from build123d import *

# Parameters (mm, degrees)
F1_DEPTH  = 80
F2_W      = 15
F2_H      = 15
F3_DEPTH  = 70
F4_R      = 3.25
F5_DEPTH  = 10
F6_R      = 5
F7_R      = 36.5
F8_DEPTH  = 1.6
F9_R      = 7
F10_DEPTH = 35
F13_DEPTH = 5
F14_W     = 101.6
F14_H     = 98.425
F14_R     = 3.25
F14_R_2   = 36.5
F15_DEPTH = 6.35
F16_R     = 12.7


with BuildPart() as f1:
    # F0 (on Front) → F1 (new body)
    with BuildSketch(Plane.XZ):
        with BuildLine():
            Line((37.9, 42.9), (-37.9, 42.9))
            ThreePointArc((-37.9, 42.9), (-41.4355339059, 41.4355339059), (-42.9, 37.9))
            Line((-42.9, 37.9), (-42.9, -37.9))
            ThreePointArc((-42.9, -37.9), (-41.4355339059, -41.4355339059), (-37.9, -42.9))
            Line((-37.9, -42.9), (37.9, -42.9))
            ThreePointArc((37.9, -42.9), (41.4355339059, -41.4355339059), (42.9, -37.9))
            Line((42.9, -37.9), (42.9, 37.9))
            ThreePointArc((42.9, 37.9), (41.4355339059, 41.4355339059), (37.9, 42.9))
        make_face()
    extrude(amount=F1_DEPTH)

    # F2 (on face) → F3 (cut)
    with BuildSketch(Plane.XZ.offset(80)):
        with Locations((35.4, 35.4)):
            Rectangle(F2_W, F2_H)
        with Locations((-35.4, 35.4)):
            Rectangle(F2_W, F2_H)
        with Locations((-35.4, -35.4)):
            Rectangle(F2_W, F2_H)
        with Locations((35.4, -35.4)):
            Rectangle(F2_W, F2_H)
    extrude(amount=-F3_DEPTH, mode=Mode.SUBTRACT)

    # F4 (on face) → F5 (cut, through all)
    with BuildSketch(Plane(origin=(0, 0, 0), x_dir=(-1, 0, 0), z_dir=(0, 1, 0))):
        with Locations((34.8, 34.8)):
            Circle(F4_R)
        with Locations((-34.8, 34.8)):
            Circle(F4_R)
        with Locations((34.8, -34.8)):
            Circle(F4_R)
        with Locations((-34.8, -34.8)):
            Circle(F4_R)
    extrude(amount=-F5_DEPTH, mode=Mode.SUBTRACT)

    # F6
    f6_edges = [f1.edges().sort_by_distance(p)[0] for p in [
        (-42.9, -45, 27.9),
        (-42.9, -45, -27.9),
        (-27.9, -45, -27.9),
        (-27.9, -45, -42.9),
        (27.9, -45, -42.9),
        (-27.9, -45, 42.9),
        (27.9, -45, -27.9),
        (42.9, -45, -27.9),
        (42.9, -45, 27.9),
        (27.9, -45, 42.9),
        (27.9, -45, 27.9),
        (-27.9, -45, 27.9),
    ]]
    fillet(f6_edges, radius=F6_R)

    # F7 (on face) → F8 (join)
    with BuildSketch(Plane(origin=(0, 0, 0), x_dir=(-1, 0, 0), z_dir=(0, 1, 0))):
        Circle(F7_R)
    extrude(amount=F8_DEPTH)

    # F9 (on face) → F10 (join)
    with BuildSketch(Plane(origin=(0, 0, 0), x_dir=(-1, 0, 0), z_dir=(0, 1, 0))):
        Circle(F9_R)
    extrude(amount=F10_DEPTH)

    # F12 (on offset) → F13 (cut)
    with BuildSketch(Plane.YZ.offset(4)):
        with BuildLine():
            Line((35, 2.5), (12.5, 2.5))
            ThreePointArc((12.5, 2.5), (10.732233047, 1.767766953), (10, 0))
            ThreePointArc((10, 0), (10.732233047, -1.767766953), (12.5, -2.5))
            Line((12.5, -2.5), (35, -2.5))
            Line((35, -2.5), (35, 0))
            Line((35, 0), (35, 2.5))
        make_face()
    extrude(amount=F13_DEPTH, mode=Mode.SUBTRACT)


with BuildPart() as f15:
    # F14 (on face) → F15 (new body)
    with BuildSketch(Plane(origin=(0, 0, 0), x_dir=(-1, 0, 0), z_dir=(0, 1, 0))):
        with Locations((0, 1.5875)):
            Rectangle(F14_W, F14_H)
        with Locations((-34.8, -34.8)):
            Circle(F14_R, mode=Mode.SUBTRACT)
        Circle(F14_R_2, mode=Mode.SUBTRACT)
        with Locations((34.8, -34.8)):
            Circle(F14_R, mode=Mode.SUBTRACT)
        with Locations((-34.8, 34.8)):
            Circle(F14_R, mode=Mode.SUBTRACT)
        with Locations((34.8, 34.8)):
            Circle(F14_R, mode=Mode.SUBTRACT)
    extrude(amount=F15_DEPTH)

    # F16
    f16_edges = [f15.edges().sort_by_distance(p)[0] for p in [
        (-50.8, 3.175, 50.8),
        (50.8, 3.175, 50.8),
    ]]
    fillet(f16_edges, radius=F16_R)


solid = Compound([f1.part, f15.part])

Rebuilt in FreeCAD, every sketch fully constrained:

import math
import FreeCAD as App
import Part
import Sketcher
from FreeCAD import Vector


def edges_at(feature, points):
    """Names of the edges that pass closest to the given points."""
    edges = feature.Shape.Edges
    near = lambda p: min(range(len(edges)), key=lambda i: edges[i].distToShape(Part.Vertex(*p))[0])
    return sorted({f"Edge{near(p) + 1}" for p in points})


def add_polygon(sketch, points):
    """Adds a closed chain of lines whose ends are joined by coincident constraints."""
    first, n = sketch.GeometryCount, len(points)
    for a, b in zip(points, points[1:] + points[:1]):
        sketch.addGeometry(Part.LineSegment(App.Vector(*a, 0), App.Vector(*b, 0)), False)
    for i in range(n):
        sketch.addConstraint(Sketcher.Constraint("Coincident", first + i, 2, first + (i + 1) % n, 1))

doc = App.newDocument("Part")
body = doc.addObject("PartDesign::Body", "Body")

# Sketch on XZ plane
sketch1 = body.newObject("Sketcher::SketchObject", "Sketch")
sketch1.AttachmentSupport = (doc.getObject("XZ_Plane"), [""])
sketch1.MapMode = "FlatFace"
sketch1.addGeometry(Part.LineSegment(Vector(38, 43, 0), Vector(-38, 43, 0)), False)
sketch1.addGeometry(Part.ArcOfCircle(Part.Circle(Vector(-38, 38, 0), Vector(0, 0, 1), 5), math.radians(90), math.radians(180)), False)
sketch1.addGeometry(Part.LineSegment(Vector(-43, 38, 0), Vector(-43, -38, 0)), False)
sketch1.addGeometry(Part.ArcOfCircle(Part.Circle(Vector(-38, -38, 0), Vector(0, 0, 1), 5), math.radians(180), math.radians(270)), False)
sketch1.addGeometry(Part.LineSegment(Vector(-38, -43, 0), Vector(38, -43, 0)), False)
sketch1.addGeometry(Part.ArcOfCircle(Part.Circle(Vector(38, -38, 0), Vector(0, 0, 1), 5), math.radians(-90), math.radians(0)), False)
sketch1.addGeometry(Part.LineSegment(Vector(43, -38, 0), Vector(43, 38, 0)), False)
sketch1.addGeometry(Part.ArcOfCircle(Part.Circle(Vector(38, 38, 0), Vector(0, 0, 1), 5), math.radians(0), math.radians(90)), False)
sketch1.addConstraint(Sketcher.Constraint("Tangent", 0, 2, 1, 1))
sketch1.addConstraint(Sketcher.Constraint("Tangent", 1, 2, 2, 1))
sketch1.addConstraint(Sketcher.Constraint("Tangent", 2, 2, 3, 1))
sketch1.addConstraint(Sketcher.Constraint("Tangent", 3, 2, 4, 1))
sketch1.addConstraint(Sketcher.Constraint("Tangent", 4, 2, 5, 1))
sketch1.addConstraint(Sketcher.Constraint("Tangent", 5, 2, 6, 1))
sketch1.addConstraint(Sketcher.Constraint("Tangent", 6, 2, 7, 1))
sketch1.addConstraint(Sketcher.Constraint("Tangent", 7, 2, 0, 1))
sketch1.addConstraint(Sketcher.Constraint("Horizontal", 0))
sketch1.addConstraint(Sketcher.Constraint("Vertical", 2))
sketch1.addConstraint(Sketcher.Constraint("Horizontal", 4))
sketch1.addConstraint(Sketcher.Constraint("Vertical", 6))
sketch1.addConstraint(Sketcher.Constraint("Equal", 1, 3))
sketch1.addConstraint(Sketcher.Constraint("Equal", 3, 5))
sketch1.addConstraint(Sketcher.Constraint("Equal", 5, 7))
sketch1.addConstraint(Sketcher.Constraint("Symmetric", 1, 3, 5, 3, -1, 1))
sketch1.addConstraint(Sketcher.Constraint("Equal", 4, 2))
sketch1.addConstraint(Sketcher.Constraint("Radius", 1, 5.0))
sketch1.addConstraint(Sketcher.Constraint("DistanceX", 0, 2, 0, 1, 75.8))
pad1 = body.newObject("PartDesign::Pad", "Pad")
pad1.Profile = sketch1
pad1.Length = 80

# Sketch on XZ plane
sketch2 = body.newObject("Sketcher::SketchObject", "Sketch001")
sketch2.AttachmentSupport = (doc.getObject("XZ_Plane"), [""])
sketch2.MapMode = "FlatFace"
sketch2.AttachmentOffset = App.Placement(Vector(0, 0, 80), App.Rotation())
add_polygon(sketch2, [(28, 43), (28, 28), (43, 28), (43, 43)])  # lines 0-3
add_polygon(sketch2, [(-43, 43), (-43, 28), (-28, 28), (-28, 43)])  # lines 4-7
add_polygon(sketch2, [(-43, -28), (-43, -43), (-28, -43), (-28, -28)])  # lines 8-11
add_polygon(sketch2, [(28, -28), (28, -43), (43, -43), (43, -28)])  # lines 12-15
sketch2.addConstraint(Sketcher.Constraint("Vertical", 0))
sketch2.addConstraint(Sketcher.Constraint("Horizontal", 1))
sketch2.addConstraint(Sketcher.Constraint("Vertical", 2))
sketch2.addConstraint(Sketcher.Constraint("Horizontal", 3))
sketch2.addConstraint(Sketcher.Constraint("Vertical", 4))
sketch2.addConstraint(Sketcher.Constraint("Horizontal", 5))
sketch2.addConstraint(Sketcher.Constraint("Vertical", 6))
sketch2.addConstraint(Sketcher.Constraint("Horizontal", 7))
sketch2.addConstraint(Sketcher.Constraint("Vertical", 8))
sketch2.addConstraint(Sketcher.Constraint("Horizontal", 9))
sketch2.addConstraint(Sketcher.Constraint("Vertical", 10))
sketch2.addConstraint(Sketcher.Constraint("Horizontal", 11))
sketch2.addConstraint(Sketcher.Constraint("Vertical", 12))
sketch2.addConstraint(Sketcher.Constraint("Horizontal", 13))
sketch2.addConstraint(Sketcher.Constraint("Vertical", 14))
sketch2.addConstraint(Sketcher.Constraint("Horizontal", 15))
sketch2.addConstraint(Sketcher.Constraint("Symmetric", 2, 2, 8, 2, -1, 1))
sketch2.addConstraint(Sketcher.Constraint("Symmetric", 0, 2, 10, 2, -1, 1))
sketch2.addConstraint(Sketcher.Constraint("Symmetric", 6, 2, 12, 2, -1, 1))
sketch2.addConstraint(Sketcher.Constraint("Symmetric", 4, 2, 14, 2, -1, 1))
sketch2.addConstraint(Sketcher.Constraint("Symmetric", 1, 2, 4, 2, -2))
sketch2.addConstraint(Sketcher.Constraint("Symmetric", 3, 2, 6, 2, -2))
sketch2.addConstraint(Sketcher.Constraint("Equal", 15, 0))
sketch2.addConstraint(Sketcher.Constraint("DistanceX", 1, 1, 1, 2, 15.0))
sketch2.addConstraint(Sketcher.Constraint("DistanceX", -1, 1, 0, 2, 27.9))
sketch2.addConstraint(Sketcher.Constraint("DistanceY", -1, 1, 0, 2, 27.9))
pocket1 = body.newObject("PartDesign::Pocket", "Pocket")
pocket1.Profile = sketch2
pocket1.Length = 70

# Sketch on XZ plane
sketch3 = body.newObject("Sketcher::SketchObject", "Sketch002")
sketch3.AttachmentSupport = (doc.getObject("XZ_Plane"), [""])
sketch3.MapMode = "FlatFace"
sketch3.addGeometry(Part.Circle(Vector(-34.8, 34.8, 0), Vector(0, 0, 1), 3.2), False)
sketch3.addGeometry(Part.Circle(Vector(34.8, 34.8, 0), Vector(0, 0, 1), 3.2), False)
sketch3.addGeometry(Part.Circle(Vector(-34.8, -34.8, 0), Vector(0, 0, 1), 3.2), False)
sketch3.addGeometry(Part.Circle(Vector(34.8, -34.8, 0), Vector(0, 0, 1), 3.2), False)
sketch3.addConstraint(Sketcher.Constraint("Equal", 0, 1))
sketch3.addConstraint(Sketcher.Constraint("Equal", 1, 2))
sketch3.addConstraint(Sketcher.Constraint("Equal", 2, 3))
sketch3.addConstraint(Sketcher.Constraint("Symmetric", 1, 3, 2, 3, -1, 1))
sketch3.addConstraint(Sketcher.Constraint("Symmetric", 0, 3, 3, 3, -1, 1))
sketch3.addConstraint(Sketcher.Constraint("Symmetric", 0, 3, 1, 3, -2))
sketch3.addConstraint(Sketcher.Constraint("Diameter", 0, 6.5))
sketch3.addConstraint(Sketcher.Constraint("DistanceX", 0, 3, -1, 1, 34.8))
sketch3.addConstraint(Sketcher.Constraint("DistanceY", -1, 1, 0, 3, 34.8))
pocket2 = body.newObject("PartDesign::Pocket", "Pocket001")
pocket2.Profile = sketch3
pocket2.Type = "ThroughAll"
pocket2.Reversed = True
doc.recompute()

fillet = body.newObject("PartDesign::Fillet", "Fillet")
fillet.Base = (pocket2, edges_at(pocket2, [
    (-42.9, -45, 27.9),
    (-42.9, -45, -27.9),
    (-27.9, -45, -27.9),
    (-27.9, -45, -42.9),
    (27.9, -45, -42.9),
    (-27.9, -45, 42.9),
    (27.9, -45, -27.9),
    (42.9, -45, -27.9),
    (42.9, -45, 27.9),
    (27.9, -45, 42.9),
    (27.9, -45, 27.9),
    (-27.9, -45, 27.9),
]))
fillet.Radius = 5

# Sketch on XZ plane
sketch4 = body.newObject("Sketcher::SketchObject", "Sketch003")
sketch4.AttachmentSupport = (doc.getObject("XZ_Plane"), [""])
sketch4.MapMode = "FlatFace"
sketch4.addGeometry(Part.Circle(Vector(0, 0, 0), Vector(0, 0, 1), 36), False)
sketch4.addConstraint(Sketcher.Constraint("Coincident", 0, 3, -1, 1))
sketch4.addConstraint(Sketcher.Constraint("Diameter", 0, 73.0))
pad2 = body.newObject("PartDesign::Pad", "Pad001")
pad2.Profile = sketch4
pad2.Length = 1.6
pad2.Reversed = True

# Sketch on XZ plane
sketch5 = body.newObject("Sketcher::SketchObject", "Sketch004")
sketch5.AttachmentSupport = (doc.getObject("XZ_Plane"), [""])
sketch5.MapMode = "FlatFace"
sketch5.addGeometry(Part.Circle(Vector(0, 0, 0), Vector(0, 0, 1), 7), False)
sketch5.addConstraint(Sketcher.Constraint("Coincident", 0, 3, -1, 1))
sketch5.addConstraint(Sketcher.Constraint("Diameter", 0, 14.0))
pad3 = body.newObject("PartDesign::Pad", "Pad002")
pad3.Profile = sketch5
pad3.Length = 35
pad3.Reversed = True

# Sketch on YZ plane
sketch6 = body.newObject("Sketcher::SketchObject", "Sketch005")
sketch6.AttachmentSupport = (doc.getObject("YZ_Plane"), [""])
sketch6.MapMode = "FlatFace"
sketch6.AttachmentOffset = App.Placement(Vector(0, 0, 4), App.Rotation())
sketch6.addGeometry(Part.LineSegment(Vector(35, 2.5, 0), Vector(12.5, 2.5, 0)), False)
sketch6.addGeometry(Part.ArcOfCircle(Part.Circle(Vector(12.5, 0, 0), Vector(0, 0, 1), 2.5), math.radians(90), math.radians(180)), False)
sketch6.addGeometry(Part.ArcOfCircle(Part.Circle(Vector(12.5, 0, 0), Vector(0, 0, 1), 2.5), math.radians(180), math.radians(270)), False)
sketch6.addGeometry(Part.LineSegment(Vector(12.5, -2.5, 0), Vector(35, -2.5, 0)), False)
sketch6.addGeometry(Part.LineSegment(Vector(35, -2.5, 0), Vector(35, 2.5, 0)), False)
sketch6.addConstraint(Sketcher.Constraint("Tangent", 0, 2, 1, 1))
sketch6.addConstraint(Sketcher.Constraint("Tangent", 1, 2, 2, 1))
sketch6.addConstraint(Sketcher.Constraint("Tangent", 2, 2, 3, 1))
sketch6.addConstraint(Sketcher.Constraint("Coincident", 3, 2, 4, 1))
sketch6.addConstraint(Sketcher.Constraint("Coincident", 4, 2, 0, 1))
sketch6.addConstraint(Sketcher.Constraint("Horizontal", 0))
sketch6.addConstraint(Sketcher.Constraint("Horizontal", 3))
sketch6.addConstraint(Sketcher.Constraint("Vertical", 4))
sketch6.addConstraint(Sketcher.Constraint("Equal", 1, 2))
sketch6.addConstraint(Sketcher.Constraint("PointOnObject", 1, 3, -1))
sketch6.addConstraint(Sketcher.Constraint("PointOnObject", 1, 2, -1))
sketch6.addConstraint(Sketcher.Constraint("Radius", 1, 2.5))
sketch6.addConstraint(Sketcher.Constraint("DistanceX", 0, 2, 0, 1, 22.5))
sketch6.addConstraint(Sketcher.Constraint("DistanceX", -1, 1, 1, 2, 10.0))
pocket3 = body.newObject("PartDesign::Pocket", "Pocket002")
pocket3.Profile = sketch6
pocket3.Length = 5
pocket3.Reversed = True
body2 = doc.addObject("PartDesign::Body", "Body001")

# Sketch on XZ plane
sketch7 = body2.newObject("Sketcher::SketchObject", "Sketch006")
sketch7.AttachmentSupport = (doc.getObject("XZ_Plane001"), [""])
sketch7.MapMode = "FlatFace"
add_polygon(sketch7, [(50.8, 50.8), (50.8, -47.6), (-50.8, -47.6), (-50.8, 50.8)])  # lines 0-3
sketch7.addGeometry(Part.Circle(Vector(34.8, -34.8, 0), Vector(0, 0, 1), 3.2), False)  # 4
sketch7.addGeometry(Part.Circle(Vector(-34.8, -34.8, 0), Vector(0, 0, 1), 3.2), False)  # 5
sketch7.addGeometry(Part.Circle(Vector(34.8, 34.8, 0), Vector(0, 0, 1), 3.2), False)  # 6
sketch7.addGeometry(Part.Circle(Vector(0, 0, 0), Vector(0, 0, 1), 36.5), False)  # 7
sketch7.addGeometry(Part.Circle(Vector(-34.8, 34.8, 0), Vector(0, 0, 1), 3.2), False)  # 8
sketch7.addConstraint(Sketcher.Constraint("Vertical", 0))
sketch7.addConstraint(Sketcher.Constraint("Horizontal", 1))
sketch7.addConstraint(Sketcher.Constraint("Vertical", 2))
sketch7.addConstraint(Sketcher.Constraint("Horizontal", 3))
sketch7.addConstraint(Sketcher.Constraint("Coincident", 7, 3, -1, 1))
sketch7.addConstraint(Sketcher.Constraint("Equal", 4, 5))
sketch7.addConstraint(Sketcher.Constraint("Equal", 5, 6))
sketch7.addConstraint(Sketcher.Constraint("Equal", 6, 8))
sketch7.addConstraint(Sketcher.Constraint("Symmetric", 5, 3, 6, 3, -1, 1))
sketch7.addConstraint(Sketcher.Constraint("Symmetric", 4, 3, 8, 3, -1, 1))
sketch7.addConstraint(Sketcher.Constraint("Symmetric", 4, 3, 5, 3, -2))
sketch7.addConstraint(Sketcher.Constraint("Diameter", 7, 73.0))
sketch7.addConstraint(Sketcher.Constraint("Diameter", 4, 6.5))
sketch7.addConstraint(Sketcher.Constraint("DistanceX", 1, 2, 1, 1, 101.6))
sketch7.addConstraint(Sketcher.Constraint("DistanceX", 4, 3, 0, 2, 16.0))
sketch7.addConstraint(Sketcher.Constraint("DistanceX", 1, 2, 5, 3, 16.0))
sketch7.addConstraint(Sketcher.Constraint("DistanceY", 8, 3, 2, 2, 16.0))
sketch7.addConstraint(Sketcher.Constraint("DistanceY", 4, 3, -1, 1, 34.8))
sketch7.addConstraint(Sketcher.Constraint("DistanceY", 0, 2, 0, 1, 98.425))
pad4 = body2.newObject("PartDesign::Pad", "Pad003")
pad4.Profile = sketch7
pad4.Length = 6.35
pad4.Reversed = True
doc.recompute()

fillet2 = body2.newObject("PartDesign::Fillet", "Fillet001")
fillet2.Base = (pad4, edges_at(pad4, [(-50.8, 3.175, 50.8), (50.8, 3.175, 50.8)]))
fillet2.Radius = 12.7

doc.recompute()
